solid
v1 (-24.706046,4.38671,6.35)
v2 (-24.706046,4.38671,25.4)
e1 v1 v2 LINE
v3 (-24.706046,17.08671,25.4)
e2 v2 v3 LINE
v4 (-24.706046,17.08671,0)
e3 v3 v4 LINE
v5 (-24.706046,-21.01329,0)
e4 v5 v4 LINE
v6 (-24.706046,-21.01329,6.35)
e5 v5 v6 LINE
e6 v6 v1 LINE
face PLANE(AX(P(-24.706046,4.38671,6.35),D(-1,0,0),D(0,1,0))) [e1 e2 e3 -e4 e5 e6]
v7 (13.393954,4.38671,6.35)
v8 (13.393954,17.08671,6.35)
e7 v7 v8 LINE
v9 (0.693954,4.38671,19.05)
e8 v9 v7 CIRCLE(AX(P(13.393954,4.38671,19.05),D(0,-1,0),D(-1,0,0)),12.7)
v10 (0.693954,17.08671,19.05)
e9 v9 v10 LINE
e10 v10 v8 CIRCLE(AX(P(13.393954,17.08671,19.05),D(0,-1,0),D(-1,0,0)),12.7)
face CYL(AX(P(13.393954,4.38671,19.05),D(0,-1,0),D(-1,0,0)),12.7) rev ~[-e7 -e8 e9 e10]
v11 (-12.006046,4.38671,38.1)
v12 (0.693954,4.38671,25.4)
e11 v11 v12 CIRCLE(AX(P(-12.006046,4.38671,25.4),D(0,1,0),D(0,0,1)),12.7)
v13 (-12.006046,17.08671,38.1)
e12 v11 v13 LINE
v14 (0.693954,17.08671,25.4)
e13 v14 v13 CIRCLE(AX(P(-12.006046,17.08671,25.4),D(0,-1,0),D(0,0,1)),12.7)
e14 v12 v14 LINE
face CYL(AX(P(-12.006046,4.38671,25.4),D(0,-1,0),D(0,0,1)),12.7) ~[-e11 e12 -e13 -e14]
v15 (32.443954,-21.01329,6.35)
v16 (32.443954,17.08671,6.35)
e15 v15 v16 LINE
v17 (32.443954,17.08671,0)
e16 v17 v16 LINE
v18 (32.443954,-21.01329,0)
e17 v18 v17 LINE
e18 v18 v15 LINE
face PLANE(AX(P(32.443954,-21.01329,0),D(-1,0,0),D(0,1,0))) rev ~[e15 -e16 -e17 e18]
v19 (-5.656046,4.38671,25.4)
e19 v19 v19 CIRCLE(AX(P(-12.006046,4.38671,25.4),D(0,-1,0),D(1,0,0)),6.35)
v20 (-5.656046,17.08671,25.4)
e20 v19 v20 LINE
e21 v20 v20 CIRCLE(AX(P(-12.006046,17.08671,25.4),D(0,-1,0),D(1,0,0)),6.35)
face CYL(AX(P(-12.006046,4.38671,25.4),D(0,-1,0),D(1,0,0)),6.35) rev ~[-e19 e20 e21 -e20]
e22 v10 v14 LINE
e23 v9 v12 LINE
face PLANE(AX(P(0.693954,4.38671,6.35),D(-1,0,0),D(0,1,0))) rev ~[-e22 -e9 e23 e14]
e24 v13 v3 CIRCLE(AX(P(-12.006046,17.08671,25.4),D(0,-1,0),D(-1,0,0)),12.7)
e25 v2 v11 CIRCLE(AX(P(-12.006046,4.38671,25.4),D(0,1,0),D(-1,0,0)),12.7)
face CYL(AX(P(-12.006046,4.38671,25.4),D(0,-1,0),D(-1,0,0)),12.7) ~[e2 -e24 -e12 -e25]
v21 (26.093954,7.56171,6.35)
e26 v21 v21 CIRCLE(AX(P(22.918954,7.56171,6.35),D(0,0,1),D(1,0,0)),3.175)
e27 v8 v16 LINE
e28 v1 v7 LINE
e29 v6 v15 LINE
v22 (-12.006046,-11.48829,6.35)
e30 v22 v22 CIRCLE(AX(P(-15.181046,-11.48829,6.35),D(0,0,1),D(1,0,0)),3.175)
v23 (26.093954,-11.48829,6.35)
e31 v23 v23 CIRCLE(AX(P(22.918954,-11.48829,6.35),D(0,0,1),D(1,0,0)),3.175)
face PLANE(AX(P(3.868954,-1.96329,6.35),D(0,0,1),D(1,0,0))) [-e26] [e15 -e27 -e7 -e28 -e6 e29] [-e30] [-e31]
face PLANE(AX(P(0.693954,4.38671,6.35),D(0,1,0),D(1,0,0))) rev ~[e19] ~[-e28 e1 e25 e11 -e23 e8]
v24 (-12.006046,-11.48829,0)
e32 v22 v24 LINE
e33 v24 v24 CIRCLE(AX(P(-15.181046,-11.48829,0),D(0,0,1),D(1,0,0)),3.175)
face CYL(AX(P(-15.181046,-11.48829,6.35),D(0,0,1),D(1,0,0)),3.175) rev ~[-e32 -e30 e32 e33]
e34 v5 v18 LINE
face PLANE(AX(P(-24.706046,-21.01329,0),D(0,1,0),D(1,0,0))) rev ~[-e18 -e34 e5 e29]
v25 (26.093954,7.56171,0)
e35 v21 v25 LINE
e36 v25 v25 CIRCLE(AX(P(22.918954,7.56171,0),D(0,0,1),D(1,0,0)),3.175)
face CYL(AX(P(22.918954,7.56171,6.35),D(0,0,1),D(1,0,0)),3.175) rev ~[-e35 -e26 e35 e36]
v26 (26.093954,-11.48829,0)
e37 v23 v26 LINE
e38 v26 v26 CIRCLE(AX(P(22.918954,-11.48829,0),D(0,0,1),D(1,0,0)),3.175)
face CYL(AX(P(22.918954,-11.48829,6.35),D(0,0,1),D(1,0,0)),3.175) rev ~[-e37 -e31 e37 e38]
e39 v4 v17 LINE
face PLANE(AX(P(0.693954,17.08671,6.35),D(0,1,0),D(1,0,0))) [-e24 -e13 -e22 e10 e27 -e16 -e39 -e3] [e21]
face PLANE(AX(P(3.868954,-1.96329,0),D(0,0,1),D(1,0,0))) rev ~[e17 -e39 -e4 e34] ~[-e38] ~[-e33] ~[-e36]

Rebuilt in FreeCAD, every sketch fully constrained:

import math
import FreeCAD as App
import Part
import Sketcher
from FreeCAD import Vector
Q = App.Units.Quantity

doc = App.newDocument("Part")
body = doc.addObject("PartDesign::Body", "Body")

# Sketch on XY plane
sketch1 = body.newObject("Sketcher::SketchObject", "Sketch")
sketch1.AttachmentSupport = (doc.getObject("XY_Plane"), [""])
sketch1.MapMode = "FlatFace"
sketch1.addGeometry([
    Part.LineSegment(Vector(-25, 17, 0), Vector(-25, -21, 0)),
    Part.LineSegment(Vector(-25, -21, 0), Vector(32, -21, 0)),
    Part.LineSegment(Vector(32, -21, 0), Vector(32, 17, 0)),
    Part.LineSegment(Vector(32, 17, 0), Vector(-25, 17, 0)),
], False)
sketch1.addConstraint([
    Sketcher.Constraint("Coincident", 0, 2, 1, 1),
    Sketcher.Constraint("Coincident", 1, 2, 2, 1),
    Sketcher.Constraint("Coincident", 2, 2, 3, 1),
    Sketcher.Constraint("Coincident", 3, 2, 0, 1),
    Sketcher.Constraint("Vertical", 0),
    Sketcher.Constraint("Horizontal", 1),
    Sketcher.Constraint("Vertical", 2),
    Sketcher.Constraint("Horizontal", 3),
    Sketcher.Constraint("DistanceY", 0, 2, 0, 1, Q("1.5 in")),
    Sketcher.Constraint("DistanceX", 1, 1, 1, 2, Q("2.25 in")),
    Sketcher.Constraint("DistanceY", 0, 2, -1, 1, 21.01329),
    Sketcher.Constraint("DistanceX", 0, 2, -1, 1, 24.706046),
])
pad1 = body.newObject("PartDesign::Pad", "Pad")
pad1.Profile = sketch1
pad1.Length = Q("0.25 in")

# Sketch on XY plane
sketch2 = body.newObject("Sketcher::SketchObject", "Sketch001")
sketch2.AttachmentSupport = (doc.getObject("XY_Plane"), [""])
sketch2.MapMode = "FlatFace"
sketch2.AttachmentOffset = App.Placement(Vector(0, 0, 0.25 * 25.4), App.Rotation())
sketch2.addGeometry([
    Part.LineSegment(Vector(-25, 17, 0), Vector(-25, 4, 0)),
    Part.LineSegment(Vector(-25, 4, 0), Vector(1, 4, 0)),
    Part.LineSegment(Vector(1, 4, 0), Vector(1, 17, 0)),
    Part.LineSegment(Vector(1, 17, 0), Vector(-25, 17, 0)),
], False)
sketch2.addConstraint([
    Sketcher.Constraint("Coincident", 0, 2, 1, 1),
    Sketcher.Constraint("Coincident", 1, 2, 2, 1),
    Sketcher.Constraint("Coincident", 2, 2, 3, 1),
    Sketcher.Constraint("Coincident", 3, 2, 0, 1),
    Sketcher.Constraint("Vertical", 0),
    Sketcher.Constraint("Horizontal", 1),
    Sketcher.Constraint("Vertical", 2),
    Sketcher.Constraint("Horizontal", 3),
    Sketcher.Constraint("DistanceX", 1, 1, 1, 2, Q("1 in")),
    Sketcher.Constraint("DistanceY", 0, 2, 0, 1, Q("0.5 in")),
    Sketcher.Constraint("DistanceY", -1, 1, 0, 2, 4.38671),
    Sketcher.Constraint("DistanceX", 0, 2, -1, 1, 24.706046),
])
pad2 = body.newObject("PartDesign::Pad", "Pad001")
pad2.Profile = sketch2
pad2.Length = Q("1.25 in")

# Sketch on XZ plane
sketch3 = body.newObject("Sketcher::SketchObject", "Sketch002")
sketch3.AttachmentSupport = (doc.getObject("XZ_Plane"), [""])
sketch3.MapMode = "FlatFace"
sketch3.AttachmentOffset = App.Placement(Vector(0, 0, -4.38671), App.Rotation())
sketch3.addGeometry([
    Part.ArcOfCircle(Part.Circle(Vector(-12, 25, 0), Vector(0, 0, 1), 13), math.radians(90), math.radians(180)),  # 0
    Part.LineSegment(Vector(-12, 38, 0), Vector(-25, 38, 0)),  # 1
    Part.LineSegment(Vector(-25, 38, 0), Vector(-25, 25, 0)),  # 2
    Part.ArcOfCircle(Part.Circle(Vector(-12, 25, 0), Vector(0, 0, 1), 13), math.radians(0), math.radians(90)),  # 3
    Part.LineSegment(Vector(1, 25, 0), Vector(1, 38, 0)),  # 4
    Part.LineSegment(Vector(1, 38, 0), Vector(-12, 38, 0)),  # 5
    Part.Circle(Vector(-12, 25, 0), Vector(0, 0, 1), 6),  # 6
], False)
sketch3.addConstraint([
    Sketcher.Constraint("Tangent", 0, 1, 1, 1),
    Sketcher.Constraint("Coincident", 1, 2, 2, 1),
    Sketcher.Constraint("Tangent", 2, 2, 0, 2),
    Sketcher.Constraint("Tangent", 3, 1, 4, 1),
    Sketcher.Constraint("Coincident", 4, 2, 5, 1),
    Sketcher.Constraint("Tangent", 5, 2, 3, 2),
    Sketcher.Constraint("Horizontal", 1),
    Sketcher.Constraint("Vertical", 2),
    Sketcher.Constraint("Vertical", 4),
    Sketcher.Constraint("Horizontal", 5),
    Sketcher.Constraint("Coincident", 3, 3, 0, 3),
    Sketcher.Constraint("Coincident", 6, 3, 0, 3),
    Sketcher.Constraint("Equal", 0, 3),
    Sketcher.Constraint("Diameter", 6, Q("0.5 in")),
    Sketcher.Constraint("Radius", 0, Q("0.5 in")),
    Sketcher.Constraint("DistanceY", -1, 1, 0, 3, Q("1 in")),
    Sketcher.Constraint("DistanceX", 0, 3, -1, 1, 12.006046),
])
pocket1 = body.newObject("PartDesign::Pocket", "Pocket")
pocket1.Profile = sketch3
pocket1.Length = Q("1 in")

# Sketch on XY plane
sketch4 = body.newObject("Sketcher::SketchObject", "Sketch003")
sketch4.AttachmentSupport = (doc.getObject("XY_Plane"), [""])
sketch4.MapMode = "FlatFace"
sketch4.AttachmentOffset = App.Placement(Vector(0, 0, 0.25 * 25.4), App.Rotation())
sketch4.addGeometry([
    Part.LineSegment(Vector(1, 17, 0), Vector(1, 4, 0)),
    Part.LineSegment(Vector(1, 4, 0), Vector(13, 4, 0)),
    Part.LineSegment(Vector(13, 4, 0), Vector(13, 17, 0)),
    Part.LineSegment(Vector(13, 17, 0), Vector(1, 17, 0)),
], False)
sketch4.addConstraint([
    Sketcher.Constraint("Coincident", 0, 2, 1, 1),
    Sketcher.Constraint("Coincident", 1, 2, 2, 1),
    Sketcher.Constraint("Coincident", 2, 2, 3, 1),
    Sketcher.Constraint("Coincident", 3, 2, 0, 1),
    Sketcher.Constraint("Vertical", 0),
    Sketcher.Constraint("Horizontal", 1),
    Sketcher.Constraint("Vertical", 2),
    Sketcher.Constraint("Horizontal", 3),
    Sketcher.Constraint("Equal", 3, 0),
    Sketcher.Constraint("DistanceX", 1, 1, 1, 2, Q("0.5 in")),
    Sketcher.Constraint("DistanceY", -1, 1, 0, 2, 4.38671),
    Sketcher.Constraint("DistanceX", -1, 1, 0, 2, 0.693954),
])
pad3 = body.newObject("PartDesign::Pad", "Pad002")
pad3.Profile = sketch4
pad3.Length = Q("0.5 in")

# Sketch on XZ plane
sketch5 = body.newObject("Sketcher::SketchObject", "Sketch004")
sketch5.AttachmentSupport = (doc.getObject("XZ_Plane"), [""])
sketch5.MapMode = "FlatFace"
sketch5.AttachmentOffset = App.Placement(Vector(0, 0, -4.38671), App.Rotation())
sketch5.addGeometry([
    Part.LineSegment(Vector(13, 19, 0), Vector(1, 19, 0)),
    Part.ArcOfCircle(Part.Circle(Vector(13, 19, 0), Vector(0, 0, 1), 13), math.radians(180), math.radians(270)),
    Part.LineSegment(Vector(13, 6, 0), Vector(13, 19, 0)),
], False)
sketch5.addConstraint([
    Sketcher.Constraint("Coincident", 0, 2, 1, 1),
    Sketcher.Constraint("Coincident", 1, 2, 2, 1),
    Sketcher.Constraint("Coincident", 2, 2, 0, 1),
    Sketcher.Constraint("Horizontal", 0),
    Sketcher.Constraint("Vertical", 2),
    Sketcher.Constraint("Coincident", 2, 2, 1, 3),
    Sketcher.Constraint("Radius", 1, Q("0.5 in")),
    Sketcher.Constraint("DistanceY", -1, 1, 1, 3, Q("0.75 in")),
    Sketcher.Constraint("DistanceX", -1, 1, 1, 3, 13.393954),
])
pocket2 = body.newObject("PartDesign::Pocket", "Pocket001")
pocket2.Profile = sketch5
pocket2.Length = Q("1 in")

# Sketch on XY plane
sketch6 = body.newObject("Sketcher::SketchObject", "Sketch005")
sketch6.AttachmentSupport = (doc.getObject("XY_Plane"), [""])
sketch6.MapMode = "FlatFace"
sketch6.AttachmentOffset = App.Placement(Vector(0, 0, 0.25 * 25.4), App.Rotation())
sketch6.addGeometry([
    Part.Circle(Vector(-15.2, -11.5, 0), Vector(0, 0, 1), 3.2),
    Part.Circle(Vector(22.9, -11.5, 0), Vector(0, 0, 1), 3.2),
    Part.Circle(Vector(22.9, 7.6, 0), Vector(0, 0, 1), 3.2),
], False)
sketch6.addConstraint([
    Sketcher.Constraint("Equal", 0, 1),
    Sketcher.Constraint("Equal", 1, 2),
    Sketcher.Constraint("Horizontal", 0, 3, 1, 3),
    Sketcher.Constraint("Vertical", 1, 3, 2, 3),
    Sketcher.Constraint("Diameter", 0, Q("0.25 in")),
    Sketcher.Constraint("DistanceX", 0, 3, 1, 3, Q("1.5 in")),
    Sketcher.Constraint("DistanceY", 1, 3, 2, 3, Q("0.75 in")),
    Sketcher.Constraint("DistanceY", 0, 3, -1, 1, 11.48829),
    Sketcher.Constraint("DistanceX", 0, 3, -1, 1, 15.181046),
])
pocket3 = body.newObject("PartDesign::Pocket", "Pocket002")
pocket3.Profile = sketch6
pocket3.Length = Q("1 in")

doc.recompute()
